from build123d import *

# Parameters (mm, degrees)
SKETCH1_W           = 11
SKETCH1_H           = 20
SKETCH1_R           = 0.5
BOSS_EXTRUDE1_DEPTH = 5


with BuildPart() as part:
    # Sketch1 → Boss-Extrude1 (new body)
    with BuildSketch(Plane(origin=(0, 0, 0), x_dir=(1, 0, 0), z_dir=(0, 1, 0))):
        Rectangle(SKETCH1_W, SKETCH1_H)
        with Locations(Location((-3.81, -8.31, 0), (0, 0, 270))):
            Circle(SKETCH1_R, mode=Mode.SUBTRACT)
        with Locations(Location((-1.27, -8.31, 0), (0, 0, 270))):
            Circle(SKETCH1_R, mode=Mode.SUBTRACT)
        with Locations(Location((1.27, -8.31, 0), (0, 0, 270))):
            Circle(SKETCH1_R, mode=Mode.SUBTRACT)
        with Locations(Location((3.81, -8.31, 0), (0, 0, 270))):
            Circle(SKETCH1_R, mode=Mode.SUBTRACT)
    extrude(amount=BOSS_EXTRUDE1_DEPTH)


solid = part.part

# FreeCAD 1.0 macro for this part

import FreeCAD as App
import Part
import Sketcher

V = App.Vector
Q = App.Units.Quantity


def add_polygon(sketch, points):
    """Adds a closed chain of lines whose ends are joined by coincident constraints."""
    first, n = sketch.GeometryCount, len(points)
    for a, b in zip(points, points[1:] + points[:1]):
        sketch.addGeometry(Part.LineSegment(App.Vector(*a, 0), App.Vector(*b, 0)), False)
    for i in range(n):
        sketch.addConstraint(Sketcher.Constraint("Coincident", first + i, 2, first + (i + 1) % n, 1))

doc = App.newDocument("Part")
params = doc.addObject("Spreadsheet::Sheet", "Params")
for row, (alias, value) in enumerate([
    ("sketch1_diameter", "1 mm"),
    ("sketch1_width", "11 mm"),
    ("sketch1_height", "20 mm"),
    ("pad1_length", "5 mm"),
], start=1):
    params.set(f"A{row}", alias)
    params.set(f"B{row}", "=" + value)
    params.setAlias(f"B{row}", alias)

body = doc.addObject("PartDesign::Body", "Body")

# Sketch on XZ plane
sketch1 = body.newObject("Sketcher::SketchObject", "Sketch")
sketch1.AttachmentSupport = (doc.getObject("XZ_Plane"), [""])
sketch1.MapMode = "FlatFace"
add_polygon(sketch1, [(-5.5, -10), (-5.5, 10), (5.5, 10), (5.5, -10)])  # lines 0-3
sketch1.addGeometry(Part.Circle(V(-3.8, 8.3, 0), V(0, 0, 1), 0.5), False)  # 4
sketch1.addGeometry(Part.Circle(V(-1.3, 8.3, 0), V(0, 0, 1), 0.5), False)  # 5
sketch1.addGeometry(Part.Circle(V(1.3, 8.3, 0), V(0, 0, 1), 0.5), False)  # 6
sketch1.addGeometry(Part.Circle(V(3.8, 8.3, 0), V(0, 0, 1), 0.5), False)  # 7
sketch1.addConstraint([
    Sketcher.Constraint("Vertical", 0),
    Sketcher.Constraint("Horizontal", 1),
    Sketcher.Constraint("Vertical", 2),
    Sketcher.Constraint("Horizontal", 3),
    Sketcher.Constraint("Equal", 4, 5),
    Sketcher.Constraint("Equal", 5, 6),
    Sketcher.Constraint("Equal", 6, 7),
    Sketcher.Constraint("Symmetric", 0, 2, 2, 2, -1, 1),
    Sketcher.Constraint("Symmetric", 5, 3, 6, 3, -2),
    Sketcher.Constraint("Symmetric", 4, 3, 7, 3, -2),
    Sketcher.Constraint("Horizontal", 4, 3, 5, 3),
    Sketcher.Constraint("Diameter", 4, Q("1 mm")),
    Sketcher.Constraint("DistanceX", 1, 1, 1, 2, Q("11 mm")),
    Sketcher.Constraint("DistanceY", 0, 1, 0, 2, Q("20 mm")),
    Sketcher.Constraint("DistanceX", 4, 3, -1, 1, Q("3.81 mm")),
    Sketcher.Constraint("DistanceY", -1, 1, 4, 3, Q("8.31 mm")),
    Sketcher.Constraint("DistanceX", 5, 3, -1, 1, Q("1.27 mm")),
])
sketch1.setExpression("Constraints[15]", "Params.sketch1_diameter")
sketch1.setExpression("Constraints[16]", "Params.sketch1_width")
sketch1.setExpression("Constraints[17]", "Params.sketch1_height")
pad1 = body.newObject("PartDesign::Pad", "Pad")
pad1.Profile = sketch1
pad1.setExpression("Length", "Params.pad1_length")
pad1.Reversed = True

doc.recompute()
